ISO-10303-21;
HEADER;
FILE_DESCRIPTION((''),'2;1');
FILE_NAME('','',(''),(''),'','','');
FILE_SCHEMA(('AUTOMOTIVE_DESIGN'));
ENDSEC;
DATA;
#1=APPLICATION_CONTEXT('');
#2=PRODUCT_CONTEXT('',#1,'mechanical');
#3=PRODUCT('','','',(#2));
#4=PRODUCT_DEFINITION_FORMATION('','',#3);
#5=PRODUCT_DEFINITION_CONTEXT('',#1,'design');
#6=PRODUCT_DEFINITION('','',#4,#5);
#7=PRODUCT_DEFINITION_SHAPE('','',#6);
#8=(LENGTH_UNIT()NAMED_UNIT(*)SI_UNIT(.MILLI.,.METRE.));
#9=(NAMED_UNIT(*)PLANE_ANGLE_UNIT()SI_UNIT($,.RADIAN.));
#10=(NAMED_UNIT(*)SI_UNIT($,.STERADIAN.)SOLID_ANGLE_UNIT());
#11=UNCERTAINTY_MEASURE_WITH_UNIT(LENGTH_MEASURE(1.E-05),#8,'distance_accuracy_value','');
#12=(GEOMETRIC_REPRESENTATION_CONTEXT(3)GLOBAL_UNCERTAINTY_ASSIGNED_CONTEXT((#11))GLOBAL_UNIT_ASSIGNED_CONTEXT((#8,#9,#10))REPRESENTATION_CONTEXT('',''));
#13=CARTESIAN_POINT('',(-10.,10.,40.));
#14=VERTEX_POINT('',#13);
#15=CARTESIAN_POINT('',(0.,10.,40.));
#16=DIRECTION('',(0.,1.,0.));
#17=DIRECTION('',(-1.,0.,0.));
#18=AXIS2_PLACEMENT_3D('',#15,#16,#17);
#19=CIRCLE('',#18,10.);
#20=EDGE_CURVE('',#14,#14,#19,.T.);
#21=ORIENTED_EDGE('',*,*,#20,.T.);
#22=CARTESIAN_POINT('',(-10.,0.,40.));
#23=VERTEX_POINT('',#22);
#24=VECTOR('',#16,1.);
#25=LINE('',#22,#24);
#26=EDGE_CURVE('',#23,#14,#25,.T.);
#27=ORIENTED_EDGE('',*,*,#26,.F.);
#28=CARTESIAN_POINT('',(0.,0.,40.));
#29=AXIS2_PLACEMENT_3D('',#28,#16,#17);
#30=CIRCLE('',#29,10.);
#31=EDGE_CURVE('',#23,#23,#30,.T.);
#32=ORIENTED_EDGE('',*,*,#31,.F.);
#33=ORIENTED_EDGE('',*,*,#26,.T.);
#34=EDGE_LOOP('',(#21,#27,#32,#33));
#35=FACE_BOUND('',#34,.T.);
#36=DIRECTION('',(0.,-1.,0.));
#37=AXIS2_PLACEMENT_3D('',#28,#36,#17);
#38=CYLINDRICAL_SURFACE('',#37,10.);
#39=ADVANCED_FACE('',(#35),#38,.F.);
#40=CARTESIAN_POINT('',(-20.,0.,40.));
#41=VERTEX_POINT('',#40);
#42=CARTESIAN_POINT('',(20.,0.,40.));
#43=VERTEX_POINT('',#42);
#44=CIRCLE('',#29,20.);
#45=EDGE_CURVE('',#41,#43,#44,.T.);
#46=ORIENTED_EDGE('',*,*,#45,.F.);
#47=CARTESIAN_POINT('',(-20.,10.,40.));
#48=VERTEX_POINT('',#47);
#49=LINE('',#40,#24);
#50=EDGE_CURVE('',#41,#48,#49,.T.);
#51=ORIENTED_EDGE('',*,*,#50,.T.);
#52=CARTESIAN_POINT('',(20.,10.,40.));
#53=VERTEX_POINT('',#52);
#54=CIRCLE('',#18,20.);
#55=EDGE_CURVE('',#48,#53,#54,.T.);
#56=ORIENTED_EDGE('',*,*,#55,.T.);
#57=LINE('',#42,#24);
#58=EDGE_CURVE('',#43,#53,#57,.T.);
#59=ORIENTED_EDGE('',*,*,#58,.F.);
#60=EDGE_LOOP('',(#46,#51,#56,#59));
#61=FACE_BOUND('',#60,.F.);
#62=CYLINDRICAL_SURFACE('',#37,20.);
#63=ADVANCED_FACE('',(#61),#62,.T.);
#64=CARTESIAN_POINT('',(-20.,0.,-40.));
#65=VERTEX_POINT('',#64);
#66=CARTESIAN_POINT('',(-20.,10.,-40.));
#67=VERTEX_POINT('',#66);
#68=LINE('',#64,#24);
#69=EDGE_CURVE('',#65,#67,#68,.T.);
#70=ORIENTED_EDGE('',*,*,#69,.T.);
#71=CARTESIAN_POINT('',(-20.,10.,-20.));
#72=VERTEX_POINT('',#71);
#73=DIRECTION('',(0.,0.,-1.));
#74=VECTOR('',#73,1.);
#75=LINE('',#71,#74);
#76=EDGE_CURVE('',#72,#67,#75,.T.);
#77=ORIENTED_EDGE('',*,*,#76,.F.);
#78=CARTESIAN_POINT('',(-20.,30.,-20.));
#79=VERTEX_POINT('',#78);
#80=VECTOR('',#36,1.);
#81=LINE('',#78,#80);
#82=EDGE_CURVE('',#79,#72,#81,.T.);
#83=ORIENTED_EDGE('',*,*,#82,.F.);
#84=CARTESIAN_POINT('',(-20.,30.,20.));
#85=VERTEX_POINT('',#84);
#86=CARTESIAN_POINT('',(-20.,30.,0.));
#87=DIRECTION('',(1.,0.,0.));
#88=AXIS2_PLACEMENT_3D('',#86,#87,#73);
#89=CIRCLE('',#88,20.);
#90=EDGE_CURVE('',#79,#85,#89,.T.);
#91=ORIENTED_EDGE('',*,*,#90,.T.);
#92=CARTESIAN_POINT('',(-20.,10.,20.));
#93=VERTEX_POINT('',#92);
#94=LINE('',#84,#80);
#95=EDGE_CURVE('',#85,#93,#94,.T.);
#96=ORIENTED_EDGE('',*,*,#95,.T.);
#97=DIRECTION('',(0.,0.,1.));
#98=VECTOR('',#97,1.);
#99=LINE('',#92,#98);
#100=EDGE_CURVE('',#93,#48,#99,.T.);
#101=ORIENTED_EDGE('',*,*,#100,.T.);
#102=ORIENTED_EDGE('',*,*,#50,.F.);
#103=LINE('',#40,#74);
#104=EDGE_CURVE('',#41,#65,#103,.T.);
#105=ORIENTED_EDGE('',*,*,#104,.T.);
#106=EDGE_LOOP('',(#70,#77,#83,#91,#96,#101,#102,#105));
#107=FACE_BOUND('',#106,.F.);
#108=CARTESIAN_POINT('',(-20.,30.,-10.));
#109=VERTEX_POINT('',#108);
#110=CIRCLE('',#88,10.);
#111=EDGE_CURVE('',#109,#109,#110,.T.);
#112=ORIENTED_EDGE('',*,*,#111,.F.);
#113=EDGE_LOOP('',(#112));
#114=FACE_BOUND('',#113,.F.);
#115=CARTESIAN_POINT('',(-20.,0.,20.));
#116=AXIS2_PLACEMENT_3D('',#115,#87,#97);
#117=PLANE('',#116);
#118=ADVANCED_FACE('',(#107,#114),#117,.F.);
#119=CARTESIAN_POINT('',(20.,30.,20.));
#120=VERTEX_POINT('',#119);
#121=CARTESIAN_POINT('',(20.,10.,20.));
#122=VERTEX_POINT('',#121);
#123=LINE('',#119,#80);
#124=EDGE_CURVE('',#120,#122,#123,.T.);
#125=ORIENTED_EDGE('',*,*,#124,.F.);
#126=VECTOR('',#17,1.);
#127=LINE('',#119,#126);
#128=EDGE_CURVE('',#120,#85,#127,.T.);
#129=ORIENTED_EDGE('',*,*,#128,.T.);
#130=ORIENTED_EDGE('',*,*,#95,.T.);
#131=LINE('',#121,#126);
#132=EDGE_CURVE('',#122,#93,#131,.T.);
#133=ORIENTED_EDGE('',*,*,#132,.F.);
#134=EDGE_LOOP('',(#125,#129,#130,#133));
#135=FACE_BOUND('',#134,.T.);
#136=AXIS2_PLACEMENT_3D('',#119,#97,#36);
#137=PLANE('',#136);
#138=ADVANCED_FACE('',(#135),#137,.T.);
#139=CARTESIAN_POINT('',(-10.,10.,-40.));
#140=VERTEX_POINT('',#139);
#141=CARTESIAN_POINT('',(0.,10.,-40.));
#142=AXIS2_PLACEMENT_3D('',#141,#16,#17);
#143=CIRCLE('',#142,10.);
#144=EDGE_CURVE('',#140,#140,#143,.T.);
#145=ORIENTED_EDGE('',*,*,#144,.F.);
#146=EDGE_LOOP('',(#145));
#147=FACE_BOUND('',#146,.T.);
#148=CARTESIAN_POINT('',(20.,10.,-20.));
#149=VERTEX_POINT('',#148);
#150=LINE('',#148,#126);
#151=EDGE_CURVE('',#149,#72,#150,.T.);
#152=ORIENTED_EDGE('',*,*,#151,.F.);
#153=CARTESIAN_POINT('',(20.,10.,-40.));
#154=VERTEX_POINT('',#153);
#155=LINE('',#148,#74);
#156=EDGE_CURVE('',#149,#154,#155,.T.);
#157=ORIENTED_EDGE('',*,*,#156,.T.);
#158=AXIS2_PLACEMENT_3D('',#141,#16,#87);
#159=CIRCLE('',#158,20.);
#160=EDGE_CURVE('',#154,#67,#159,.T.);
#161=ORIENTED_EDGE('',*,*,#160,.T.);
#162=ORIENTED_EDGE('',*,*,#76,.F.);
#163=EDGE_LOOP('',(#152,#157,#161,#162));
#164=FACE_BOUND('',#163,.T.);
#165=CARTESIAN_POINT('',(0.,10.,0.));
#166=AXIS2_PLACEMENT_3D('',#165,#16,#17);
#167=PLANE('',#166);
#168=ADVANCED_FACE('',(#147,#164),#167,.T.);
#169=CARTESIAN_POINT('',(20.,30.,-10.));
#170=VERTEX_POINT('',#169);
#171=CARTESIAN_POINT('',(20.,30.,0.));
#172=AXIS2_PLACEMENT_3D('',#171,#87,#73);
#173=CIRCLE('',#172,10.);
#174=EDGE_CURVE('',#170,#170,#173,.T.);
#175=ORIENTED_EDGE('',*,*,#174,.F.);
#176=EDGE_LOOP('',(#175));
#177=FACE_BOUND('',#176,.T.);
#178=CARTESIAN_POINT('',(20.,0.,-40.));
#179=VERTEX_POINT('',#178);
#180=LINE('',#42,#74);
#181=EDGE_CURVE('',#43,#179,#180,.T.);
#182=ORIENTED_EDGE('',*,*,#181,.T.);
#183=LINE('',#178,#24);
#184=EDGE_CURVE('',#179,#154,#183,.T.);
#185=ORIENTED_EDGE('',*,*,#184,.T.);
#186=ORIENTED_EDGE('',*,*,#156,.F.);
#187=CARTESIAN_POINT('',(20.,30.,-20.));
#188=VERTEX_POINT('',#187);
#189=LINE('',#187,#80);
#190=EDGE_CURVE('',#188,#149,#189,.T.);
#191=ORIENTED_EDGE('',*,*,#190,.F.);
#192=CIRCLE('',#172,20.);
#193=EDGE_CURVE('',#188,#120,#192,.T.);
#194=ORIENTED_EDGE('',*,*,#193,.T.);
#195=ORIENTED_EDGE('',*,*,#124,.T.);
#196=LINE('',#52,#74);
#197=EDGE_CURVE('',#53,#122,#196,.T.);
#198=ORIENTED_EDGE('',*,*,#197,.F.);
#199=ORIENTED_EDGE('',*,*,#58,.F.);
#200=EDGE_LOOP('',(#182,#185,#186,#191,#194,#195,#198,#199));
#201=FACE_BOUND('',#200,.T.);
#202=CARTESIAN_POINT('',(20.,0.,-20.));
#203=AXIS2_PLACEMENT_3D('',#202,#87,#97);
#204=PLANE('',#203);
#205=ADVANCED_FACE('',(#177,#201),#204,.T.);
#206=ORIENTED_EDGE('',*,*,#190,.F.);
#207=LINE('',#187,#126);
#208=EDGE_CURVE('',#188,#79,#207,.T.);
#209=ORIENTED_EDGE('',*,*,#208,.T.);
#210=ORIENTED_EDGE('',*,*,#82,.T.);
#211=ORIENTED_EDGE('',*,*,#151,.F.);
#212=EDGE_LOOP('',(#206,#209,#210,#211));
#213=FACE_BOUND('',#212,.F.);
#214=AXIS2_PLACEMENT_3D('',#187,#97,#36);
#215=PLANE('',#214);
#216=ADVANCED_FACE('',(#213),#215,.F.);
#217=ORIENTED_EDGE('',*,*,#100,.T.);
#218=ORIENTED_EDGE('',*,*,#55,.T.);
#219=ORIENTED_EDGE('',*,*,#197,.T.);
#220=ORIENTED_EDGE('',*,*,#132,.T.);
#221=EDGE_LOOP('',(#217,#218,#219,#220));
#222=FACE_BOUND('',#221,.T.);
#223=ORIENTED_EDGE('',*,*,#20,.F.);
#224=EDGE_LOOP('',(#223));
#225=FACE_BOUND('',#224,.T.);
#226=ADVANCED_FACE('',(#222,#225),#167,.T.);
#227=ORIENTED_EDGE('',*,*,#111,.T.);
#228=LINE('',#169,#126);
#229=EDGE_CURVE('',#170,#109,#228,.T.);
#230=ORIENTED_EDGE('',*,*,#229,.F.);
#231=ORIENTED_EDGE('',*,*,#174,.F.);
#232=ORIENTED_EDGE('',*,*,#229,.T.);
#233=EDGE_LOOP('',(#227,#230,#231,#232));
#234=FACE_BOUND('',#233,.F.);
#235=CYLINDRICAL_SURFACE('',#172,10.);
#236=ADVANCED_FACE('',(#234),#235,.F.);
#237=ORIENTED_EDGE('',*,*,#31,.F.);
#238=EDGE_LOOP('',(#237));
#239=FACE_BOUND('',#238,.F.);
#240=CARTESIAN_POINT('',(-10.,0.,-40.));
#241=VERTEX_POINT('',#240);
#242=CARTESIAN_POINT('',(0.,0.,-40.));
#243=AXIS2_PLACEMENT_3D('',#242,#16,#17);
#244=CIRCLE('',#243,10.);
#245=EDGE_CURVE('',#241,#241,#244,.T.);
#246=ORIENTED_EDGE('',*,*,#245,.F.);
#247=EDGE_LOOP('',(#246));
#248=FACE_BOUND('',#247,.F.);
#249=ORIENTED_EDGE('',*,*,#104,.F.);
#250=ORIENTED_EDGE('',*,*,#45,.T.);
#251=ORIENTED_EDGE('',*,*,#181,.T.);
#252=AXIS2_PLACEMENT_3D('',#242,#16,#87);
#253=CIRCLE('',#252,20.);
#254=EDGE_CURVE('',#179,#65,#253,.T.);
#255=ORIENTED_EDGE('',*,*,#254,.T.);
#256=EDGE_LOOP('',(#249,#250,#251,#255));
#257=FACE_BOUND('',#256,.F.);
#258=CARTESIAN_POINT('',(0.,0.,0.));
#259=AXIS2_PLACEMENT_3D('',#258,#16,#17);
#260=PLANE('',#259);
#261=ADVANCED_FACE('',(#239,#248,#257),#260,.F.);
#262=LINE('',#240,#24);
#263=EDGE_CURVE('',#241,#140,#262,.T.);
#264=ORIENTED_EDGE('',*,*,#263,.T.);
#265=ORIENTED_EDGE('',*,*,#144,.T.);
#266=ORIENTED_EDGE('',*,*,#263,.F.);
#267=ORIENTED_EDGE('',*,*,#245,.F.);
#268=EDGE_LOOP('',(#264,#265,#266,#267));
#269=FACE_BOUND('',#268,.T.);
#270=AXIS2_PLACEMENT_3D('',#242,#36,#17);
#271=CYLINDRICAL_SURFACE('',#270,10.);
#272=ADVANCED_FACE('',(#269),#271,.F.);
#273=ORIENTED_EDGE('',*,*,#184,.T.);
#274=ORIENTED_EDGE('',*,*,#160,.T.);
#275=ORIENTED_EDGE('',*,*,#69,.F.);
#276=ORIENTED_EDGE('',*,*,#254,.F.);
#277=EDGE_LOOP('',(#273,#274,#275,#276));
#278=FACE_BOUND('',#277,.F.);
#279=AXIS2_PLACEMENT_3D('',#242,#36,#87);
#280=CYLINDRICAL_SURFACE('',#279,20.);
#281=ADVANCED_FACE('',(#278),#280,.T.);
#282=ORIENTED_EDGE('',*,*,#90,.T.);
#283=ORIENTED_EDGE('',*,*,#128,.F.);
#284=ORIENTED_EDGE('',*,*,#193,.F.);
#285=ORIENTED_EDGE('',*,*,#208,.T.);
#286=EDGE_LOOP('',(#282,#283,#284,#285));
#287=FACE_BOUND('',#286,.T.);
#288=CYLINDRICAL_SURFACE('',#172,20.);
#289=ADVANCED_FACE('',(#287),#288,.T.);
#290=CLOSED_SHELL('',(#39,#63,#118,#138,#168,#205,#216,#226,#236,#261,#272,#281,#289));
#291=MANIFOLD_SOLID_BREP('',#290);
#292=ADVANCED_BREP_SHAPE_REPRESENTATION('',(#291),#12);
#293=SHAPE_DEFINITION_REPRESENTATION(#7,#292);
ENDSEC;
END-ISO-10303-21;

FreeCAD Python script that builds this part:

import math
import FreeCAD as App
import Part
import Sketcher

V = App.Vector
Q = App.Units.Quantity

doc = App.newDocument("Part")
body = doc.addObject("PartDesign::Body", "Body")

# Sketch on XZ plane
sketch1 = doc.addObject("Sketcher::SketchObject", "Sketch")
body.addObject(sketch1)
sketch1.AttachmentSupport = (doc.XZ_Plane, [""])
sketch1.MapMode = "FlatFace"
sketch1.addGeometry([
    Part.LineSegment(V(20, 40, 0), V(20, -40, 0)),  # 0
    Part.ArcOfCircle(Part.Circle(V(0, -40, 0), V(0, 0, 1), 20), math.radians(180), math.radians(360)),  # 1
    Part.LineSegment(V(-20, -40, 0), V(-20, 40, 0)),  # 2
    Part.ArcOfCircle(Part.Circle(V(0, 40, 0), V(0, 0, 1), 20), math.radians(0), math.radians(180)),  # 3
    Part.Circle(V(0, -40, 0), V(0, 0, 1), 10),  # 4
    Part.Circle(V(0, 40, 0), V(0, 0, 1), 10),  # 5
], False)
sketch1.addConstraint([
    Sketcher.Constraint("Tangent", 0, 2, 1, 2),
    Sketcher.Constraint("Tangent", 1, 1, 2, 1),
    Sketcher.Constraint("Tangent", 2, 2, 3, 2),
    Sketcher.Constraint("Tangent", 3, 1, 0, 1),
    Sketcher.Constraint("Vertical", 0),
    Sketcher.Constraint("Vertical", 2),
    Sketcher.Constraint("Coincident", 4, 3, 1, 3),
    Sketcher.Constraint("Coincident", 5, 3, 3, 3),
    Sketcher.Constraint("Equal", 4, 5),
    Sketcher.Constraint("Symmetric", 1, 3, 3, 3, -1, 1),
    Sketcher.Constraint("Diameter", 4, Q("20 mm")),
    Sketcher.Constraint("Radius", 1, Q("20 mm")),
    Sketcher.Constraint("DistanceY", 0, 2, 0, 1, Q("80 mm")),
])
pad1 = doc.addObject("PartDesign::Pad", "Pad")
body.addObject(pad1)
pad1.Profile = sketch1
pad1.Length = 10
pad1.Reversed = True

# Sketch on YZ plane
sketch2 = doc.addObject("Sketcher::SketchObject", "Sketch001")
body.addObject(sketch2)
sketch2.AttachmentSupport = (doc.YZ_Plane, [""])
sketch2.MapMode = "FlatFace"
sketch2.AttachmentOffset = App.Placement(V(0, 0, 20), App.Rotation())
sketch2.addGeometry([
    Part.LineSegment(V(10, -20, 0), V(30, -20, 0)),  # 0
    Part.ArcOfCircle(Part.Circle(V(30, 0, 0), V(0, 0, 1), 20), math.radians(-90), math.radians(90)),  # 1
    Part.LineSegment(V(30, 20, 0), V(10, 20, 0)),  # 2
    Part.LineSegment(V(10, 20, 0), V(10, -20, 0)),  # 3
    Part.Circle(V(30, 0, 0), V(0, 0, 1), 10),  # 4
], False)
sketch2.addConstraint([
    Sketcher.Constraint("Tangent", 0, 2, 1, 1),
    Sketcher.Constraint("Tangent", 1, 2, 2, 1),
    Sketcher.Constraint("Coincident", 2, 2, 3, 1),
    Sketcher.Constraint("Coincident", 3, 2, 0, 1),
    Sketcher.Constraint("Horizontal", 0),
    Sketcher.Constraint("Horizontal", 2),
    Sketcher.Constraint("Vertical", 3),
    Sketcher.Constraint("Coincident", 4, 3, 1, 3),
    Sketcher.Constraint("PointOnObject", 1, 3, -1),
    Sketcher.Constraint("Diameter", 4, Q("20 mm")),
    Sketcher.Constraint("Radius", 1, Q("20 mm")),
    Sketcher.Constraint("DistanceX", 0, 1, 0, 2, Q("20 mm")),
    Sketcher.Constraint("DistanceX", -1, 1, 1, 3, Q("30 mm")),
])
pad2 = doc.addObject("PartDesign::Pad", "Pad001")
body.addObject(pad2)
pad2.Profile = sketch2
pad2.Length = 40
pad2.Reversed = True

doc.recompute()
